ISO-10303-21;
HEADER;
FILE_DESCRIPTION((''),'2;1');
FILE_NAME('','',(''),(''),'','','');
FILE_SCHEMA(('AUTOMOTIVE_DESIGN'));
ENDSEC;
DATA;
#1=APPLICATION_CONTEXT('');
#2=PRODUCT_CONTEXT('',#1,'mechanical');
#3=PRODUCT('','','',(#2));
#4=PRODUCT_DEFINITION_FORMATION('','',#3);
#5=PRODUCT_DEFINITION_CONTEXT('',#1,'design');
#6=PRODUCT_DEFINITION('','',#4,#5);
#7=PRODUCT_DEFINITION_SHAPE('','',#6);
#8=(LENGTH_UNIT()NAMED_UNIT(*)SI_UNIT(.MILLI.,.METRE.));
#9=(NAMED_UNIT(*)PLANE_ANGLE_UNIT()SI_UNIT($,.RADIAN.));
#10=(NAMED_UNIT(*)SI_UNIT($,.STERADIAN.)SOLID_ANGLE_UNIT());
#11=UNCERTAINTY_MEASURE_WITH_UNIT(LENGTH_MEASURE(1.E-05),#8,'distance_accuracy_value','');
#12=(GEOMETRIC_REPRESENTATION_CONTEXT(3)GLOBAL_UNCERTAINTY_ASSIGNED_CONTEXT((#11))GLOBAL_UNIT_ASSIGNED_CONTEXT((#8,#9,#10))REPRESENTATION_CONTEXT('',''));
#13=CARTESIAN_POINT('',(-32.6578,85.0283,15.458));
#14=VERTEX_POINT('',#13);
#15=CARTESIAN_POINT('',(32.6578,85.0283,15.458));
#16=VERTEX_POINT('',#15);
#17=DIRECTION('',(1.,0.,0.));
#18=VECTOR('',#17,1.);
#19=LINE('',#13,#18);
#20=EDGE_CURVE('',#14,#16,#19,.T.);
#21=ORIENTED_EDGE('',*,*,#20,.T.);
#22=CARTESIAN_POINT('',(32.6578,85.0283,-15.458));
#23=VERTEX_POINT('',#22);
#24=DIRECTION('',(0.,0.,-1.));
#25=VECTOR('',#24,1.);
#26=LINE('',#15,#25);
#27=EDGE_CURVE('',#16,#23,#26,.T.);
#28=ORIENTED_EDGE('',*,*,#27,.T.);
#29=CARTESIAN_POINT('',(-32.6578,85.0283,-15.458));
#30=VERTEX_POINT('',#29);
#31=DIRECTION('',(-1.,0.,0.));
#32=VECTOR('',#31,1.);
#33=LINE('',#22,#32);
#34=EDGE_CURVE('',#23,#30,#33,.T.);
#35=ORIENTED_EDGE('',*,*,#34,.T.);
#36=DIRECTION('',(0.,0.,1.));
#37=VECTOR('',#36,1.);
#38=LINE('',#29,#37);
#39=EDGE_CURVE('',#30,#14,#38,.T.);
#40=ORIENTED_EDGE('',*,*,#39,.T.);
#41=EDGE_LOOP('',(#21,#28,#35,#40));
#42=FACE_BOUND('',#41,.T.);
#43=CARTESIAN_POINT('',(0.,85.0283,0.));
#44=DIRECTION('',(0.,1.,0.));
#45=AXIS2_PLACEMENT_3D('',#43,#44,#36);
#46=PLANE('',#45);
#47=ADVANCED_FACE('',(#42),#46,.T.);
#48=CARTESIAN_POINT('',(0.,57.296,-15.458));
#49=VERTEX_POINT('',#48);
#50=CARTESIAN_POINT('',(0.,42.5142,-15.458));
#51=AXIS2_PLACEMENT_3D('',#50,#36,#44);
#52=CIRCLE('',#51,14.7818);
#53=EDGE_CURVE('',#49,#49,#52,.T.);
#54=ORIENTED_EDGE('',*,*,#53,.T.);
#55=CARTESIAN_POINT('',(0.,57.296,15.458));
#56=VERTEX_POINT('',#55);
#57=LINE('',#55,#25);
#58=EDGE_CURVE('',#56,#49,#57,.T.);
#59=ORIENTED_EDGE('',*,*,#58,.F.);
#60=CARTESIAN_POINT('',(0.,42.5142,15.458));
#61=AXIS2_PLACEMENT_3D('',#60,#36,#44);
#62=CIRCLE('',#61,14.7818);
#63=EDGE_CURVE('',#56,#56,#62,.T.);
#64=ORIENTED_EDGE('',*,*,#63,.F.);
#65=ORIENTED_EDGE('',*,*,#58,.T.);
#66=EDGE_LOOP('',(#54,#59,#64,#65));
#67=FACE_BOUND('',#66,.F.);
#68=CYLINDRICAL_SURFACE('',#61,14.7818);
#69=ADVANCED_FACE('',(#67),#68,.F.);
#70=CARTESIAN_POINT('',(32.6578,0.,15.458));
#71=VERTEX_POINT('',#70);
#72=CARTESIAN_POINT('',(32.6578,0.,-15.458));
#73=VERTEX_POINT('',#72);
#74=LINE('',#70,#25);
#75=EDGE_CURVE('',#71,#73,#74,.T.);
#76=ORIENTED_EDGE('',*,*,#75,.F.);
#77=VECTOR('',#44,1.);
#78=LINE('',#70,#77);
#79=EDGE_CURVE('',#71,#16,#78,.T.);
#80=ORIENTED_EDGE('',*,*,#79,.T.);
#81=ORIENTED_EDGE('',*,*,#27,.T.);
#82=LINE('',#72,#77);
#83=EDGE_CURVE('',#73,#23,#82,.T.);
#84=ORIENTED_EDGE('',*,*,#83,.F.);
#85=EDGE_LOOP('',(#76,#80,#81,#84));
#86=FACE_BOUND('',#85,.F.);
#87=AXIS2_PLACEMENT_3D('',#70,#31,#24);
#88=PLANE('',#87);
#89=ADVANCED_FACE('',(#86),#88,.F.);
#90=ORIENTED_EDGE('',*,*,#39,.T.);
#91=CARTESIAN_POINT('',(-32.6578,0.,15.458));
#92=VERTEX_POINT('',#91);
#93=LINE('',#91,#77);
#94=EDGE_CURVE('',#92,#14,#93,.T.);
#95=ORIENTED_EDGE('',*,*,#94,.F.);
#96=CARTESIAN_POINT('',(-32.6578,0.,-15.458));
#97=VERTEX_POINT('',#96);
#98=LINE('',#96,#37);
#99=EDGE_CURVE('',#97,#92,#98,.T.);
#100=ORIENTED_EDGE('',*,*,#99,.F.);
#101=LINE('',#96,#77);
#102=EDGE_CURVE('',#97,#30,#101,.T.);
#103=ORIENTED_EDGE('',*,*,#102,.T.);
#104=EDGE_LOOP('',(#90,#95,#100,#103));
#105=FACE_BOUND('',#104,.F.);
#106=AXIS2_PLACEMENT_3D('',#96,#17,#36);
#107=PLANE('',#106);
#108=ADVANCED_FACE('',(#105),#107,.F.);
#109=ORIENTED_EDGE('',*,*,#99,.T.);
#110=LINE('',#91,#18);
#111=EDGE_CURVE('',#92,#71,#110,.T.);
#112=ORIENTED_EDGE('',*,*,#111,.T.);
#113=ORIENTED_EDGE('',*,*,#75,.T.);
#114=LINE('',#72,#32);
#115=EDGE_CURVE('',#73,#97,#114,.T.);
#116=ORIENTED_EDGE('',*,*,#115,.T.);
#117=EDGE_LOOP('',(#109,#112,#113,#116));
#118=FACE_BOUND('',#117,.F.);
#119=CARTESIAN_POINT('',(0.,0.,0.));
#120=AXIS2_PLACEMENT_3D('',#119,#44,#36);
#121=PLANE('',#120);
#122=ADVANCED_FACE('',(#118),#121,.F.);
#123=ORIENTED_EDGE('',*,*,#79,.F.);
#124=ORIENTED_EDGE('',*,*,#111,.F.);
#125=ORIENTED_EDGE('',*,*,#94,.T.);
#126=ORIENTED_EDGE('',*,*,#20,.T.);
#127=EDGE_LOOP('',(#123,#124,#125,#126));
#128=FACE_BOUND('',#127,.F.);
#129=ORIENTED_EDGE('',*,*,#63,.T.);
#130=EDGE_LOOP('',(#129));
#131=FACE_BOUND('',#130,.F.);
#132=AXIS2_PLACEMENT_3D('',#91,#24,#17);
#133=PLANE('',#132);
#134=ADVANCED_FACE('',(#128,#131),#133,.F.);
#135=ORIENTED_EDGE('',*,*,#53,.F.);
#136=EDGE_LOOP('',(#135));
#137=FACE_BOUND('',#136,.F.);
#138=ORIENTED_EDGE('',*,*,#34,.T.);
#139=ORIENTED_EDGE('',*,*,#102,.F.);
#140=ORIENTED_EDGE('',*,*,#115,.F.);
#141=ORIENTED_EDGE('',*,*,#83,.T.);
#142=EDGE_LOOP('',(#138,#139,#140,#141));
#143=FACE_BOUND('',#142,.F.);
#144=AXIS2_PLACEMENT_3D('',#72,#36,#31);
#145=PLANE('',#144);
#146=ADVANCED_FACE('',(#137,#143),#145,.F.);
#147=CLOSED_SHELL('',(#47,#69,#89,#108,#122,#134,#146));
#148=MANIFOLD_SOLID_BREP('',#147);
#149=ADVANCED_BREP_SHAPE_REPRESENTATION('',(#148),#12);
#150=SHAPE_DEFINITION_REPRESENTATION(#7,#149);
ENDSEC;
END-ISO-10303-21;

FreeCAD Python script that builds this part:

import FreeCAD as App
import Part
import Sketcher

doc = App.newDocument("Part")
body = doc.addObject("PartDesign::Body", "Body")

# Sketch on XZ plane
sketch1 = body.newObject("Sketcher::SketchObject", "Sketch")
sketch1.AttachmentSupport = (doc.getObject("XZ_Plane"), [""])
sketch1.MapMode = "FlatFace"
sketch1.addGeometry([
    Part.LineSegment(App.Vector(33, 15, 0), App.Vector(-33, 15, 0)),
    Part.LineSegment(App.Vector(-33, 15, 0), App.Vector(-33, -15, 0)),
    Part.LineSegment(App.Vector(-33, -15, 0), App.Vector(33, -15, 0)),
    Part.LineSegment(App.Vector(33, -15, 0), App.Vector(33, 15, 0)),
], False)
sketch1.addConstraint([
    Sketcher.Constraint("Coincident", 0, 2, 1, 1),
    Sketcher.Constraint("Coincident", 1, 2, 2, 1),
    Sketcher.Constraint("Coincident", 2, 2, 3, 1),
    Sketcher.Constraint("Coincident", 3, 2, 0, 1),
    Sketcher.Constraint("Horizontal", 0),
    Sketcher.Constraint("Vertical", 1),
    Sketcher.Constraint("Horizontal", 2),
    Sketcher.Constraint("Vertical", 3),
    Sketcher.Constraint("Symmetric", 0, 2, 2, 2, -1, 1),
    Sketcher.Constraint("DistanceY", 1, 2, 1, 1, 30.916),
    Sketcher.Constraint("DistanceX", 0, 2, 0, 1, 65.3156),
])
pad1 = body.newObject("PartDesign::Pad", "Pad")
pad1.Profile = sketch1
pad1.Length = 85.0283
pad1.Reversed = True

# Sketch on XY plane
sketch2 = body.newObject("Sketcher::SketchObject", "Sketch001")
sketch2.AttachmentSupport = (doc.getObject("XY_Plane"), [""])
sketch2.MapMode = "FlatFace"
sketch2.AttachmentOffset = App.Placement(App.Vector(0, 0, 15.458), App.Rotation())
sketch2.addGeometry(Part.Circle(App.Vector(0, 43, 0), App.Vector(0, 0, 1), 15), False)
sketch2.addConstraint([
    Sketcher.Constraint("PointOnObject", 0, 3, -2),
    Sketcher.Constraint("Diameter", 0, 29.5636),
    Sketcher.Constraint("DistanceY", -1, 1, 0, 3, 42.5142),
])
pocket1 = body.newObject("PartDesign::Pocket", "Pocket")
pocket1.Profile = sketch2
pocket1.Type = "UpToFirst"

doc.recompute()
